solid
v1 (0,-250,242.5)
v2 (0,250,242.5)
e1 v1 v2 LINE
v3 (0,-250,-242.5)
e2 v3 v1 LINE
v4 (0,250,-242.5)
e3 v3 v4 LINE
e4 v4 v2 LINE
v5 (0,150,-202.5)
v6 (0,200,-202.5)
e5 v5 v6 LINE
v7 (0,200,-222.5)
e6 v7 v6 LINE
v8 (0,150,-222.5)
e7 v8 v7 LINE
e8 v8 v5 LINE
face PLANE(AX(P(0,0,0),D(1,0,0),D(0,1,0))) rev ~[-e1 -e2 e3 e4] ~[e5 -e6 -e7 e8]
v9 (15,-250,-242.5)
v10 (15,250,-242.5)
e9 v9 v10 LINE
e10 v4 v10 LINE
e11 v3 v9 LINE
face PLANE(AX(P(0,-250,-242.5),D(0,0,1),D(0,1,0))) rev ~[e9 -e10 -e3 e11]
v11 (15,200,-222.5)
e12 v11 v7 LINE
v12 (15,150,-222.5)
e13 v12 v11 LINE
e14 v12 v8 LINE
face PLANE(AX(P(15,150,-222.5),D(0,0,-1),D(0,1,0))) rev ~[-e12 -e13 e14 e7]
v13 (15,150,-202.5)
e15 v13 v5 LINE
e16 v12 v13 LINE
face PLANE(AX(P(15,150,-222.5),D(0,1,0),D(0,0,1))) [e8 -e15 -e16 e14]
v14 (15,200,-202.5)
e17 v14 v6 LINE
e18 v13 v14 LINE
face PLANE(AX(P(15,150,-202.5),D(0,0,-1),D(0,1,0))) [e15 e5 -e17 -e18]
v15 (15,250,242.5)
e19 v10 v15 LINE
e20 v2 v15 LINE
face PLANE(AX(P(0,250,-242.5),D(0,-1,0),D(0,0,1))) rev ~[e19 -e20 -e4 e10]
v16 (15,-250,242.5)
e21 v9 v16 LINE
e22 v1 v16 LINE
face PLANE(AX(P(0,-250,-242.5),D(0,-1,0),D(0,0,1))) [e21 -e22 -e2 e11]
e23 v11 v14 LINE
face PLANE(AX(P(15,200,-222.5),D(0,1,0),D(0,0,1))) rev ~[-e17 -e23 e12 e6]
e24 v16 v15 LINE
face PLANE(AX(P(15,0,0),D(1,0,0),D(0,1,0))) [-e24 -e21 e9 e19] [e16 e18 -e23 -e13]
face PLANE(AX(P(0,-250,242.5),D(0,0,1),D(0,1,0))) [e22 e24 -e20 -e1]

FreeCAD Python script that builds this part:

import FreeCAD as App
import Part
import Sketcher

doc = App.newDocument("Part")
body = doc.addObject("PartDesign::Body", "Body")

# Sketch on YZ plane
sketch1 = body.newObject("Sketcher::SketchObject", "Sketch")
sketch1.AttachmentSupport = (doc.getObject("YZ_Plane"), [""])
sketch1.MapMode = "FlatFace"
sketch1.addGeometry([
    Part.LineSegment(App.Vector(-250, 242, 0), App.Vector(-250, -242, 0)),
    Part.LineSegment(App.Vector(-250, -242, 0), App.Vector(250, -242, 0)),
    Part.LineSegment(App.Vector(250, -242, 0), App.Vector(250, 242, 0)),
    Part.LineSegment(App.Vector(250, 242, 0), App.Vector(-250, 242, 0)),
], False)
sketch1.addConstraint([
    Sketcher.Constraint("Coincident", 0, 2, 1, 1),
    Sketcher.Constraint("Coincident", 1, 2, 2, 1),
    Sketcher.Constraint("Coincident", 2, 2, 3, 1),
    Sketcher.Constraint("Coincident", 3, 2, 0, 1),
    Sketcher.Constraint("Vertical", 0),
    Sketcher.Constraint("Horizontal", 1),
    Sketcher.Constraint("Vertical", 2),
    Sketcher.Constraint("Horizontal", 3),
    Sketcher.Constraint("Symmetric", 0, 2, 2, 2, -1, 1),
    Sketcher.Constraint("DistanceX", 1, 1, 1, 2, 500.0),
    Sketcher.Constraint("DistanceY", 0, 2, 0, 1, 485.0),
])
pad1 = body.newObject("PartDesign::Pad", "Pad")
pad1.Profile = sketch1
pad1.Length = 15

# Sketch on YZ plane
sketch2 = body.newObject("Sketcher::SketchObject", "Sketch001")
sketch2.AttachmentSupport = (doc.getObject("YZ_Plane"), [""])
sketch2.MapMode = "FlatFace"
sketch2.AttachmentOffset = App.Placement(App.Vector(0, 0, 15), App.Rotation())
sketch2.addGeometry([
    Part.LineSegment(App.Vector(150, -202, 0), App.Vector(150, -222, 0)),
    Part.LineSegment(App.Vector(150, -222, 0), App.Vector(200, -222, 0)),
    Part.LineSegment(App.Vector(200, -222, 0), App.Vector(200, -202, 0)),
    Part.LineSegment(App.Vector(200, -202, 0), App.Vector(150, -202, 0)),
], False)
sketch2.addConstraint([
    Sketcher.Constraint("Coincident", 0, 2, 1, 1),
    Sketcher.Constraint("Coincident", 1, 2, 2, 1),
    Sketcher.Constraint("Coincident", 2, 2, 3, 1),
    Sketcher.Constraint("Coincident", 3, 2, 0, 1),
    Sketcher.Constraint("Vertical", 0),
    Sketcher.Constraint("Horizontal", 1),
    Sketcher.Constraint("Vertical", 2),
    Sketcher.Constraint("Horizontal", 3),
    Sketcher.Constraint("DistanceX", 1, 1, 1, 2, 50.0),
    Sketcher.Constraint("DistanceY", 0, 2, 0, 1, 20.0),
    Sketcher.Constraint("DistanceX", -1, 1, 0, 2, 150.0),
    Sketcher.Constraint("DistanceY", 0, 2, -1, 1, 222.5),
])
pocket1 = body.newObject("PartDesign::Pocket", "Pocket")
pocket1.Profile = sketch2
pocket1.Type = "ThroughAll"

doc.recompute()
